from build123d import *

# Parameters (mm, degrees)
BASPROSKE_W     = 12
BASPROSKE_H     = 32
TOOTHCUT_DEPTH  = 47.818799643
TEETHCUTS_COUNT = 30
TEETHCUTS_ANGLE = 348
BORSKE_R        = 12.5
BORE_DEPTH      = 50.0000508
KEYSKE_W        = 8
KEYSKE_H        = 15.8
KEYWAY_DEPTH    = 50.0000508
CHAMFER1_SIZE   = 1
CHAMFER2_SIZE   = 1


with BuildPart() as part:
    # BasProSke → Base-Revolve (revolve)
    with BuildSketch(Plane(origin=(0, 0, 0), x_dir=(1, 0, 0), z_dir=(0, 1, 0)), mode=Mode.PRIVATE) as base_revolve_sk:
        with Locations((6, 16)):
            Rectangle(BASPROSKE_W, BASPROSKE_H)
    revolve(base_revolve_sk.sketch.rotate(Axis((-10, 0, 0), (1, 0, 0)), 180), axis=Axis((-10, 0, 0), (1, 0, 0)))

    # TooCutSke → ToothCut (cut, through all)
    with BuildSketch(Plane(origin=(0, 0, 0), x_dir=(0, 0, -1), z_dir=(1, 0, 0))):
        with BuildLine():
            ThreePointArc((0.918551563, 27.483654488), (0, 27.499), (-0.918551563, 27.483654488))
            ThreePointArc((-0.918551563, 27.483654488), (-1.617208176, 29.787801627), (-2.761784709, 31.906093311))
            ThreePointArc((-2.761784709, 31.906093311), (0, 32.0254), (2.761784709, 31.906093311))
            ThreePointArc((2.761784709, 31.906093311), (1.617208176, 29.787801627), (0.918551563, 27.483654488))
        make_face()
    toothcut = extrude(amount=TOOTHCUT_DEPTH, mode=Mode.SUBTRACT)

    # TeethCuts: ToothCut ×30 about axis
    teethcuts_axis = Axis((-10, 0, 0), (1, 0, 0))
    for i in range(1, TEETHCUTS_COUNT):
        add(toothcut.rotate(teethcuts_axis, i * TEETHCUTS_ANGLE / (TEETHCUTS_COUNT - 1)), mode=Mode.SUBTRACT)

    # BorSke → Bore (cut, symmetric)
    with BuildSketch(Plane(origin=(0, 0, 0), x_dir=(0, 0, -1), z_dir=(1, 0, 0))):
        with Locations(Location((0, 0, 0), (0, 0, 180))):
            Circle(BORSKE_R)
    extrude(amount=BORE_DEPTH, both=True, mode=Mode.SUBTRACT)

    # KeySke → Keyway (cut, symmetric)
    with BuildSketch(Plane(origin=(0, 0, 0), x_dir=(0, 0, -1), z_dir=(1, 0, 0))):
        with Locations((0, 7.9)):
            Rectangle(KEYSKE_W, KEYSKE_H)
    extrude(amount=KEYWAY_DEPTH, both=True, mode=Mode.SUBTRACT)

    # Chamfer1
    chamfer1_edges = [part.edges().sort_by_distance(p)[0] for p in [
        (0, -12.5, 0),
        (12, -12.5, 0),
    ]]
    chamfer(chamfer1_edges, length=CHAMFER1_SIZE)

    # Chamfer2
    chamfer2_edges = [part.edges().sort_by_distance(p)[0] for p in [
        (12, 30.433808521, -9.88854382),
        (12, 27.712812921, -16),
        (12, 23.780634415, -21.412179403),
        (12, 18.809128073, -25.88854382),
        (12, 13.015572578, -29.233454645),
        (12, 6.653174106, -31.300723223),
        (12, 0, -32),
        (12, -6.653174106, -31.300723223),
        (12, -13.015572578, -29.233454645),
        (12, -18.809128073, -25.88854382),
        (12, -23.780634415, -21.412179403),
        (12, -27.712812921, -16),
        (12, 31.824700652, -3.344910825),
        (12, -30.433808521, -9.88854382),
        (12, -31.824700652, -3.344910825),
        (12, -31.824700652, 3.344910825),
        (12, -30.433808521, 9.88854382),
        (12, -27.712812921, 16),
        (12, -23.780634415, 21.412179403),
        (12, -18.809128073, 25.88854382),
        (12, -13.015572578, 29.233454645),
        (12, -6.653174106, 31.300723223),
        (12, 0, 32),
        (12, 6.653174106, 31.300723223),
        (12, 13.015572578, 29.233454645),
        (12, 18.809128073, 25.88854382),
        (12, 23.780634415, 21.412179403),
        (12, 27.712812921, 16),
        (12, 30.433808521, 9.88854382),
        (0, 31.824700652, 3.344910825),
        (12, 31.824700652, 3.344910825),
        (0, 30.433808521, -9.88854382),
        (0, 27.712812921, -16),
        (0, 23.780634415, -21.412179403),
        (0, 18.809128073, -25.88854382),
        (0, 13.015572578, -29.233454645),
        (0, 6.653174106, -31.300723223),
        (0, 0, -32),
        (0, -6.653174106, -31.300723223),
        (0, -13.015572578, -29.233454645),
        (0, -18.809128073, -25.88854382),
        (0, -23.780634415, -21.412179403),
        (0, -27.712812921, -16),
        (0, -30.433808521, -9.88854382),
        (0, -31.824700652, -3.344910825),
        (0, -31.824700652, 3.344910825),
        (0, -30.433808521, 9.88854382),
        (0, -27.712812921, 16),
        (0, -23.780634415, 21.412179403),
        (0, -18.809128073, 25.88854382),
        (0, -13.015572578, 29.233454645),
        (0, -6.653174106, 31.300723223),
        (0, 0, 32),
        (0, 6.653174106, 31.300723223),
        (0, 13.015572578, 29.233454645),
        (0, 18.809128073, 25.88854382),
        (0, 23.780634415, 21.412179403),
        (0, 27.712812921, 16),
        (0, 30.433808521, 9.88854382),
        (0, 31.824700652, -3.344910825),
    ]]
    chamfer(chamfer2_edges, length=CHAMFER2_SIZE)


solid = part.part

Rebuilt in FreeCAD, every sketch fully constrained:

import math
import FreeCAD as App
import Part
import Sketcher

V = App.Vector


def edges_at(feature, points):
    """Names of the edges that pass closest to the given points."""
    edges = feature.Shape.Edges
    near = lambda p: min(range(len(edges)), key=lambda i: edges[i].distToShape(Part.Vertex(*p))[0])
    return sorted({f"Edge{near(p) + 1}" for p in points})


def add_polygon(sketch, points):
    """Adds a closed chain of lines whose ends are joined by coincident constraints."""
    first, n = sketch.GeometryCount, len(points)
    for a, b in zip(points, points[1:] + points[:1]):
        sketch.addGeometry(Part.LineSegment(App.Vector(*a, 0), App.Vector(*b, 0)), False)
    for i in range(n):
        sketch.addConstraint(Sketcher.Constraint("Coincident", first + i, 2, first + (i + 1) % n, 1))

doc = App.newDocument("Part")
body = doc.addObject("PartDesign::Body", "Body")

sketch1 = doc.addObject("Sketcher::SketchObject", "Sketch")
body.addObject(sketch1)
sketch1.AttachmentSupport = (doc.XZ_Plane, [""])
sketch1.MapMode = "FlatFace"
add_polygon(sketch1, [(0, -32), (0, 0), (12, 0), (12, -32)])
sketch1.addConstraint([
    Sketcher.Constraint("Vertical", 0),
    Sketcher.Constraint("Horizontal", 1),
    Sketcher.Constraint("Vertical", 2),
    Sketcher.Constraint("Horizontal", 3),
    Sketcher.Constraint("Coincident", 0, 2, -1, 1),
    Sketcher.Constraint("DistanceX", 1, 1, 1, 2, 12.0),
    Sketcher.Constraint("DistanceY", 0, 1, 0, 2, 32.0),
])
revolution = doc.addObject("PartDesign::Revolution", "Revolution")
body.addObject(revolution)
revolution.Profile = sketch1
revolution.ReferenceAxis = (sketch1, ["H_Axis"])
revolution.Angle = 360

sketch2 = doc.addObject("Sketcher::SketchObject", "Sketch001")
body.addObject(sketch2)
sketch2.AttachmentSupport = (doc.YZ_Plane, [""])
sketch2.MapMode = "FlatFace"
sketch2.addGeometry([
    Part.ArcOfCircle(Part.Circle(V(0, 0, 0), V(0, 0, 1), 27.499), math.radians(-1.914212), math.radians(1.914212)),
    Part.ArcOfCircle(Part.Circle(V(25.171243, -12.693642, 0), V(0, 0, 1), 12), math.radians(55.858574), math.radians(78.889547)),
    Part.ArcOfCircle(Part.Circle(V(0, 0, 0), V(0, 0, 1), 32.0254), math.radians(-4.947179), math.radians(4.947179)),
    Part.ArcOfCircle(Part.Circle(V(25.171243, 12.693642, 0), V(0, 0, 1), 12), math.radians(-78.889547), math.radians(-55.858574)),
], False)
sketch2.addConstraint([
    Sketcher.Constraint("Coincident", 0, 1, 1, 2),
    Sketcher.Constraint("Coincident", 1, 1, 2, 1),
    Sketcher.Constraint("Coincident", 2, 2, 3, 2),
    Sketcher.Constraint("Coincident", 3, 1, 0, 2),
    Sketcher.Constraint("Coincident", 0, 3, -1, 1),
    Sketcher.Constraint("Coincident", 2, 3, -1, 1),
    Sketcher.Constraint("Equal", 1, 3),
    Sketcher.Constraint("Symmetric", 1, 3, 3, 3, -1),
    Sketcher.Constraint("Radius", 1, 12.0),
    Sketcher.Constraint("Radius", 0, 27.499),
    Sketcher.Constraint("Radius", 2, 32.0254),
    Sketcher.Constraint("DistanceY", 1, 3, -1, 1, 12.693642),
    Sketcher.Constraint("DistanceY", 0, 1, -1, 1, 0.918552),
])
pocket1 = doc.addObject("PartDesign::Pocket", "Pocket")
body.addObject(pocket1)
pocket1.Profile = sketch2
pocket1.Type = "ThroughAll"
pocket1.Reversed = True
doc.recompute()

polarpattern = doc.addObject("PartDesign::PolarPattern", "PolarPattern")
body.addObject(polarpattern)
polarpattern.Originals = [pocket1]
polarpattern.Axis = (doc.X_Axis, [""])
polarpattern.Angle = 360
polarpattern.Occurrences = 30
body.Tip = polarpattern

sketch3 = doc.addObject("Sketcher::SketchObject", "Sketch002")
body.addObject(sketch3)
sketch3.AttachmentSupport = (doc.YZ_Plane, [""])
sketch3.MapMode = "FlatFace"
sketch3.addGeometry(Part.Circle(V(0, 0, 0), V(0, 0, 1), 12.5), False)
sketch3.addConstraint([
    Sketcher.Constraint("Coincident", 0, 3, -1, 1),
    Sketcher.Constraint("Diameter", 0, 25.0),
])
pocket2 = doc.addObject("PartDesign::Pocket", "Pocket001")
body.addObject(pocket2)
pocket2.Profile = sketch3
pocket2.Length = 100.000102
pocket2.Midplane = True

sketch4 = doc.addObject("Sketcher::SketchObject", "Sketch003")
body.addObject(sketch4)
sketch4.AttachmentSupport = (doc.YZ_Plane, [""])
sketch4.MapMode = "FlatFace"
add_polygon(sketch4, [(15.8, 4), (0, 4), (0, -4), (15.8, -4)])
sketch4.addConstraint([
    Sketcher.Constraint("Horizontal", 0),
    Sketcher.Constraint("Vertical", 1),
    Sketcher.Constraint("Horizontal", 2),
    Sketcher.Constraint("Vertical", 3),
    Sketcher.Constraint("Symmetric", 0, 2, 1, 2, -1, 1),
    Sketcher.Constraint("DistanceY", 1, 2, 1, 1, 8.0),
    Sketcher.Constraint("DistanceX", 0, 2, 0, 1, 15.8),
])
pocket3 = doc.addObject("PartDesign::Pocket", "Pocket002")
body.addObject(pocket3)
pocket3.Profile = sketch4
pocket3.Length = 100.000102
pocket3.Midplane = True
doc.recompute()

chamfer = doc.addObject("PartDesign::Chamfer", "Chamfer")
body.addObject(chamfer)
chamfer.Base = (pocket3, edges_at(pocket3, [(0, -12.5, 0), (12, -12.5, 0)]))
chamfer.Size = 1
doc.recompute()

chamfer2 = doc.addObject("PartDesign::Chamfer", "Chamfer001")
body.addObject(chamfer2)
chamfer2.Base = (chamfer, edges_at(chamfer, [
    (12, 30.434, -9.889),
    (12, 27.713, -16),
    (12, 23.781, -21.412),
    (12, 18.809, -25.889),
    (12, 13.016, -29.233),
    (12, 6.653, -31.301),
    (12, 0, -32),
    (12, -6.653, -31.301),
    (12, -13.016, -29.233),
    (12, -18.809, -25.889),
    (12, -23.781, -21.412),
    (12, -27.713, -16),
    (12, 31.825, -3.345),
    (12, -30.434, -9.889),
    (12, -31.825, -3.345),
    (12, -31.825, 3.345),
    (12, -30.434, 9.889),
    (12, -27.713, 16),
    (12, -23.781, 21.412),
    (12, -18.809, 25.889),
    (12, -13.016, 29.233),
    (12, -6.653, 31.301),
    (12, 0, 32),
    (12, 6.653, 31.301),
    (12, 13.016, 29.233),
    (12, 18.809, 25.889),
    (12, 23.781, 21.412),
    (12, 27.713, 16),
    (12, 30.434, 9.889),
    (0, 31.825, 3.345),
    (12, 31.825, 3.345),
    (0, 30.434, -9.889),
    (0, 27.713, -16),
    (0, 23.781, -21.412),
    (0, 18.809, -25.889),
    (0, 13.016, -29.233),
    (0, 6.653, -31.301),
    (0, 0, -32),
    (0, -6.653, -31.301),
    (0, -13.016, -29.233),
    (0, -18.809, -25.889),
    (0, -23.781, -21.412),
    (0, -27.713, -16),
    (0, -30.434, -9.889),
    (0, -31.825, -3.345),
    (0, -31.825, 3.345),
    (0, -30.434, 9.889),
    (0, -27.713, 16),
    (0, -23.781, 21.412),
    (0, -18.809, 25.889),
    (0, -13.016, 29.233),
    (0, -6.653, 31.301),
    (0, 0, 32),
    (0, 6.653, 31.301),
    (0, 13.016, 29.233),
    (0, 18.809, 25.889),
    (0, 23.781, 21.412),
    (0, 27.713, 16),
    (0, 30.434, 9.889),
    (0, 31.825, -3.345),
]))
chamfer2.Size = 1

doc.recompute()
